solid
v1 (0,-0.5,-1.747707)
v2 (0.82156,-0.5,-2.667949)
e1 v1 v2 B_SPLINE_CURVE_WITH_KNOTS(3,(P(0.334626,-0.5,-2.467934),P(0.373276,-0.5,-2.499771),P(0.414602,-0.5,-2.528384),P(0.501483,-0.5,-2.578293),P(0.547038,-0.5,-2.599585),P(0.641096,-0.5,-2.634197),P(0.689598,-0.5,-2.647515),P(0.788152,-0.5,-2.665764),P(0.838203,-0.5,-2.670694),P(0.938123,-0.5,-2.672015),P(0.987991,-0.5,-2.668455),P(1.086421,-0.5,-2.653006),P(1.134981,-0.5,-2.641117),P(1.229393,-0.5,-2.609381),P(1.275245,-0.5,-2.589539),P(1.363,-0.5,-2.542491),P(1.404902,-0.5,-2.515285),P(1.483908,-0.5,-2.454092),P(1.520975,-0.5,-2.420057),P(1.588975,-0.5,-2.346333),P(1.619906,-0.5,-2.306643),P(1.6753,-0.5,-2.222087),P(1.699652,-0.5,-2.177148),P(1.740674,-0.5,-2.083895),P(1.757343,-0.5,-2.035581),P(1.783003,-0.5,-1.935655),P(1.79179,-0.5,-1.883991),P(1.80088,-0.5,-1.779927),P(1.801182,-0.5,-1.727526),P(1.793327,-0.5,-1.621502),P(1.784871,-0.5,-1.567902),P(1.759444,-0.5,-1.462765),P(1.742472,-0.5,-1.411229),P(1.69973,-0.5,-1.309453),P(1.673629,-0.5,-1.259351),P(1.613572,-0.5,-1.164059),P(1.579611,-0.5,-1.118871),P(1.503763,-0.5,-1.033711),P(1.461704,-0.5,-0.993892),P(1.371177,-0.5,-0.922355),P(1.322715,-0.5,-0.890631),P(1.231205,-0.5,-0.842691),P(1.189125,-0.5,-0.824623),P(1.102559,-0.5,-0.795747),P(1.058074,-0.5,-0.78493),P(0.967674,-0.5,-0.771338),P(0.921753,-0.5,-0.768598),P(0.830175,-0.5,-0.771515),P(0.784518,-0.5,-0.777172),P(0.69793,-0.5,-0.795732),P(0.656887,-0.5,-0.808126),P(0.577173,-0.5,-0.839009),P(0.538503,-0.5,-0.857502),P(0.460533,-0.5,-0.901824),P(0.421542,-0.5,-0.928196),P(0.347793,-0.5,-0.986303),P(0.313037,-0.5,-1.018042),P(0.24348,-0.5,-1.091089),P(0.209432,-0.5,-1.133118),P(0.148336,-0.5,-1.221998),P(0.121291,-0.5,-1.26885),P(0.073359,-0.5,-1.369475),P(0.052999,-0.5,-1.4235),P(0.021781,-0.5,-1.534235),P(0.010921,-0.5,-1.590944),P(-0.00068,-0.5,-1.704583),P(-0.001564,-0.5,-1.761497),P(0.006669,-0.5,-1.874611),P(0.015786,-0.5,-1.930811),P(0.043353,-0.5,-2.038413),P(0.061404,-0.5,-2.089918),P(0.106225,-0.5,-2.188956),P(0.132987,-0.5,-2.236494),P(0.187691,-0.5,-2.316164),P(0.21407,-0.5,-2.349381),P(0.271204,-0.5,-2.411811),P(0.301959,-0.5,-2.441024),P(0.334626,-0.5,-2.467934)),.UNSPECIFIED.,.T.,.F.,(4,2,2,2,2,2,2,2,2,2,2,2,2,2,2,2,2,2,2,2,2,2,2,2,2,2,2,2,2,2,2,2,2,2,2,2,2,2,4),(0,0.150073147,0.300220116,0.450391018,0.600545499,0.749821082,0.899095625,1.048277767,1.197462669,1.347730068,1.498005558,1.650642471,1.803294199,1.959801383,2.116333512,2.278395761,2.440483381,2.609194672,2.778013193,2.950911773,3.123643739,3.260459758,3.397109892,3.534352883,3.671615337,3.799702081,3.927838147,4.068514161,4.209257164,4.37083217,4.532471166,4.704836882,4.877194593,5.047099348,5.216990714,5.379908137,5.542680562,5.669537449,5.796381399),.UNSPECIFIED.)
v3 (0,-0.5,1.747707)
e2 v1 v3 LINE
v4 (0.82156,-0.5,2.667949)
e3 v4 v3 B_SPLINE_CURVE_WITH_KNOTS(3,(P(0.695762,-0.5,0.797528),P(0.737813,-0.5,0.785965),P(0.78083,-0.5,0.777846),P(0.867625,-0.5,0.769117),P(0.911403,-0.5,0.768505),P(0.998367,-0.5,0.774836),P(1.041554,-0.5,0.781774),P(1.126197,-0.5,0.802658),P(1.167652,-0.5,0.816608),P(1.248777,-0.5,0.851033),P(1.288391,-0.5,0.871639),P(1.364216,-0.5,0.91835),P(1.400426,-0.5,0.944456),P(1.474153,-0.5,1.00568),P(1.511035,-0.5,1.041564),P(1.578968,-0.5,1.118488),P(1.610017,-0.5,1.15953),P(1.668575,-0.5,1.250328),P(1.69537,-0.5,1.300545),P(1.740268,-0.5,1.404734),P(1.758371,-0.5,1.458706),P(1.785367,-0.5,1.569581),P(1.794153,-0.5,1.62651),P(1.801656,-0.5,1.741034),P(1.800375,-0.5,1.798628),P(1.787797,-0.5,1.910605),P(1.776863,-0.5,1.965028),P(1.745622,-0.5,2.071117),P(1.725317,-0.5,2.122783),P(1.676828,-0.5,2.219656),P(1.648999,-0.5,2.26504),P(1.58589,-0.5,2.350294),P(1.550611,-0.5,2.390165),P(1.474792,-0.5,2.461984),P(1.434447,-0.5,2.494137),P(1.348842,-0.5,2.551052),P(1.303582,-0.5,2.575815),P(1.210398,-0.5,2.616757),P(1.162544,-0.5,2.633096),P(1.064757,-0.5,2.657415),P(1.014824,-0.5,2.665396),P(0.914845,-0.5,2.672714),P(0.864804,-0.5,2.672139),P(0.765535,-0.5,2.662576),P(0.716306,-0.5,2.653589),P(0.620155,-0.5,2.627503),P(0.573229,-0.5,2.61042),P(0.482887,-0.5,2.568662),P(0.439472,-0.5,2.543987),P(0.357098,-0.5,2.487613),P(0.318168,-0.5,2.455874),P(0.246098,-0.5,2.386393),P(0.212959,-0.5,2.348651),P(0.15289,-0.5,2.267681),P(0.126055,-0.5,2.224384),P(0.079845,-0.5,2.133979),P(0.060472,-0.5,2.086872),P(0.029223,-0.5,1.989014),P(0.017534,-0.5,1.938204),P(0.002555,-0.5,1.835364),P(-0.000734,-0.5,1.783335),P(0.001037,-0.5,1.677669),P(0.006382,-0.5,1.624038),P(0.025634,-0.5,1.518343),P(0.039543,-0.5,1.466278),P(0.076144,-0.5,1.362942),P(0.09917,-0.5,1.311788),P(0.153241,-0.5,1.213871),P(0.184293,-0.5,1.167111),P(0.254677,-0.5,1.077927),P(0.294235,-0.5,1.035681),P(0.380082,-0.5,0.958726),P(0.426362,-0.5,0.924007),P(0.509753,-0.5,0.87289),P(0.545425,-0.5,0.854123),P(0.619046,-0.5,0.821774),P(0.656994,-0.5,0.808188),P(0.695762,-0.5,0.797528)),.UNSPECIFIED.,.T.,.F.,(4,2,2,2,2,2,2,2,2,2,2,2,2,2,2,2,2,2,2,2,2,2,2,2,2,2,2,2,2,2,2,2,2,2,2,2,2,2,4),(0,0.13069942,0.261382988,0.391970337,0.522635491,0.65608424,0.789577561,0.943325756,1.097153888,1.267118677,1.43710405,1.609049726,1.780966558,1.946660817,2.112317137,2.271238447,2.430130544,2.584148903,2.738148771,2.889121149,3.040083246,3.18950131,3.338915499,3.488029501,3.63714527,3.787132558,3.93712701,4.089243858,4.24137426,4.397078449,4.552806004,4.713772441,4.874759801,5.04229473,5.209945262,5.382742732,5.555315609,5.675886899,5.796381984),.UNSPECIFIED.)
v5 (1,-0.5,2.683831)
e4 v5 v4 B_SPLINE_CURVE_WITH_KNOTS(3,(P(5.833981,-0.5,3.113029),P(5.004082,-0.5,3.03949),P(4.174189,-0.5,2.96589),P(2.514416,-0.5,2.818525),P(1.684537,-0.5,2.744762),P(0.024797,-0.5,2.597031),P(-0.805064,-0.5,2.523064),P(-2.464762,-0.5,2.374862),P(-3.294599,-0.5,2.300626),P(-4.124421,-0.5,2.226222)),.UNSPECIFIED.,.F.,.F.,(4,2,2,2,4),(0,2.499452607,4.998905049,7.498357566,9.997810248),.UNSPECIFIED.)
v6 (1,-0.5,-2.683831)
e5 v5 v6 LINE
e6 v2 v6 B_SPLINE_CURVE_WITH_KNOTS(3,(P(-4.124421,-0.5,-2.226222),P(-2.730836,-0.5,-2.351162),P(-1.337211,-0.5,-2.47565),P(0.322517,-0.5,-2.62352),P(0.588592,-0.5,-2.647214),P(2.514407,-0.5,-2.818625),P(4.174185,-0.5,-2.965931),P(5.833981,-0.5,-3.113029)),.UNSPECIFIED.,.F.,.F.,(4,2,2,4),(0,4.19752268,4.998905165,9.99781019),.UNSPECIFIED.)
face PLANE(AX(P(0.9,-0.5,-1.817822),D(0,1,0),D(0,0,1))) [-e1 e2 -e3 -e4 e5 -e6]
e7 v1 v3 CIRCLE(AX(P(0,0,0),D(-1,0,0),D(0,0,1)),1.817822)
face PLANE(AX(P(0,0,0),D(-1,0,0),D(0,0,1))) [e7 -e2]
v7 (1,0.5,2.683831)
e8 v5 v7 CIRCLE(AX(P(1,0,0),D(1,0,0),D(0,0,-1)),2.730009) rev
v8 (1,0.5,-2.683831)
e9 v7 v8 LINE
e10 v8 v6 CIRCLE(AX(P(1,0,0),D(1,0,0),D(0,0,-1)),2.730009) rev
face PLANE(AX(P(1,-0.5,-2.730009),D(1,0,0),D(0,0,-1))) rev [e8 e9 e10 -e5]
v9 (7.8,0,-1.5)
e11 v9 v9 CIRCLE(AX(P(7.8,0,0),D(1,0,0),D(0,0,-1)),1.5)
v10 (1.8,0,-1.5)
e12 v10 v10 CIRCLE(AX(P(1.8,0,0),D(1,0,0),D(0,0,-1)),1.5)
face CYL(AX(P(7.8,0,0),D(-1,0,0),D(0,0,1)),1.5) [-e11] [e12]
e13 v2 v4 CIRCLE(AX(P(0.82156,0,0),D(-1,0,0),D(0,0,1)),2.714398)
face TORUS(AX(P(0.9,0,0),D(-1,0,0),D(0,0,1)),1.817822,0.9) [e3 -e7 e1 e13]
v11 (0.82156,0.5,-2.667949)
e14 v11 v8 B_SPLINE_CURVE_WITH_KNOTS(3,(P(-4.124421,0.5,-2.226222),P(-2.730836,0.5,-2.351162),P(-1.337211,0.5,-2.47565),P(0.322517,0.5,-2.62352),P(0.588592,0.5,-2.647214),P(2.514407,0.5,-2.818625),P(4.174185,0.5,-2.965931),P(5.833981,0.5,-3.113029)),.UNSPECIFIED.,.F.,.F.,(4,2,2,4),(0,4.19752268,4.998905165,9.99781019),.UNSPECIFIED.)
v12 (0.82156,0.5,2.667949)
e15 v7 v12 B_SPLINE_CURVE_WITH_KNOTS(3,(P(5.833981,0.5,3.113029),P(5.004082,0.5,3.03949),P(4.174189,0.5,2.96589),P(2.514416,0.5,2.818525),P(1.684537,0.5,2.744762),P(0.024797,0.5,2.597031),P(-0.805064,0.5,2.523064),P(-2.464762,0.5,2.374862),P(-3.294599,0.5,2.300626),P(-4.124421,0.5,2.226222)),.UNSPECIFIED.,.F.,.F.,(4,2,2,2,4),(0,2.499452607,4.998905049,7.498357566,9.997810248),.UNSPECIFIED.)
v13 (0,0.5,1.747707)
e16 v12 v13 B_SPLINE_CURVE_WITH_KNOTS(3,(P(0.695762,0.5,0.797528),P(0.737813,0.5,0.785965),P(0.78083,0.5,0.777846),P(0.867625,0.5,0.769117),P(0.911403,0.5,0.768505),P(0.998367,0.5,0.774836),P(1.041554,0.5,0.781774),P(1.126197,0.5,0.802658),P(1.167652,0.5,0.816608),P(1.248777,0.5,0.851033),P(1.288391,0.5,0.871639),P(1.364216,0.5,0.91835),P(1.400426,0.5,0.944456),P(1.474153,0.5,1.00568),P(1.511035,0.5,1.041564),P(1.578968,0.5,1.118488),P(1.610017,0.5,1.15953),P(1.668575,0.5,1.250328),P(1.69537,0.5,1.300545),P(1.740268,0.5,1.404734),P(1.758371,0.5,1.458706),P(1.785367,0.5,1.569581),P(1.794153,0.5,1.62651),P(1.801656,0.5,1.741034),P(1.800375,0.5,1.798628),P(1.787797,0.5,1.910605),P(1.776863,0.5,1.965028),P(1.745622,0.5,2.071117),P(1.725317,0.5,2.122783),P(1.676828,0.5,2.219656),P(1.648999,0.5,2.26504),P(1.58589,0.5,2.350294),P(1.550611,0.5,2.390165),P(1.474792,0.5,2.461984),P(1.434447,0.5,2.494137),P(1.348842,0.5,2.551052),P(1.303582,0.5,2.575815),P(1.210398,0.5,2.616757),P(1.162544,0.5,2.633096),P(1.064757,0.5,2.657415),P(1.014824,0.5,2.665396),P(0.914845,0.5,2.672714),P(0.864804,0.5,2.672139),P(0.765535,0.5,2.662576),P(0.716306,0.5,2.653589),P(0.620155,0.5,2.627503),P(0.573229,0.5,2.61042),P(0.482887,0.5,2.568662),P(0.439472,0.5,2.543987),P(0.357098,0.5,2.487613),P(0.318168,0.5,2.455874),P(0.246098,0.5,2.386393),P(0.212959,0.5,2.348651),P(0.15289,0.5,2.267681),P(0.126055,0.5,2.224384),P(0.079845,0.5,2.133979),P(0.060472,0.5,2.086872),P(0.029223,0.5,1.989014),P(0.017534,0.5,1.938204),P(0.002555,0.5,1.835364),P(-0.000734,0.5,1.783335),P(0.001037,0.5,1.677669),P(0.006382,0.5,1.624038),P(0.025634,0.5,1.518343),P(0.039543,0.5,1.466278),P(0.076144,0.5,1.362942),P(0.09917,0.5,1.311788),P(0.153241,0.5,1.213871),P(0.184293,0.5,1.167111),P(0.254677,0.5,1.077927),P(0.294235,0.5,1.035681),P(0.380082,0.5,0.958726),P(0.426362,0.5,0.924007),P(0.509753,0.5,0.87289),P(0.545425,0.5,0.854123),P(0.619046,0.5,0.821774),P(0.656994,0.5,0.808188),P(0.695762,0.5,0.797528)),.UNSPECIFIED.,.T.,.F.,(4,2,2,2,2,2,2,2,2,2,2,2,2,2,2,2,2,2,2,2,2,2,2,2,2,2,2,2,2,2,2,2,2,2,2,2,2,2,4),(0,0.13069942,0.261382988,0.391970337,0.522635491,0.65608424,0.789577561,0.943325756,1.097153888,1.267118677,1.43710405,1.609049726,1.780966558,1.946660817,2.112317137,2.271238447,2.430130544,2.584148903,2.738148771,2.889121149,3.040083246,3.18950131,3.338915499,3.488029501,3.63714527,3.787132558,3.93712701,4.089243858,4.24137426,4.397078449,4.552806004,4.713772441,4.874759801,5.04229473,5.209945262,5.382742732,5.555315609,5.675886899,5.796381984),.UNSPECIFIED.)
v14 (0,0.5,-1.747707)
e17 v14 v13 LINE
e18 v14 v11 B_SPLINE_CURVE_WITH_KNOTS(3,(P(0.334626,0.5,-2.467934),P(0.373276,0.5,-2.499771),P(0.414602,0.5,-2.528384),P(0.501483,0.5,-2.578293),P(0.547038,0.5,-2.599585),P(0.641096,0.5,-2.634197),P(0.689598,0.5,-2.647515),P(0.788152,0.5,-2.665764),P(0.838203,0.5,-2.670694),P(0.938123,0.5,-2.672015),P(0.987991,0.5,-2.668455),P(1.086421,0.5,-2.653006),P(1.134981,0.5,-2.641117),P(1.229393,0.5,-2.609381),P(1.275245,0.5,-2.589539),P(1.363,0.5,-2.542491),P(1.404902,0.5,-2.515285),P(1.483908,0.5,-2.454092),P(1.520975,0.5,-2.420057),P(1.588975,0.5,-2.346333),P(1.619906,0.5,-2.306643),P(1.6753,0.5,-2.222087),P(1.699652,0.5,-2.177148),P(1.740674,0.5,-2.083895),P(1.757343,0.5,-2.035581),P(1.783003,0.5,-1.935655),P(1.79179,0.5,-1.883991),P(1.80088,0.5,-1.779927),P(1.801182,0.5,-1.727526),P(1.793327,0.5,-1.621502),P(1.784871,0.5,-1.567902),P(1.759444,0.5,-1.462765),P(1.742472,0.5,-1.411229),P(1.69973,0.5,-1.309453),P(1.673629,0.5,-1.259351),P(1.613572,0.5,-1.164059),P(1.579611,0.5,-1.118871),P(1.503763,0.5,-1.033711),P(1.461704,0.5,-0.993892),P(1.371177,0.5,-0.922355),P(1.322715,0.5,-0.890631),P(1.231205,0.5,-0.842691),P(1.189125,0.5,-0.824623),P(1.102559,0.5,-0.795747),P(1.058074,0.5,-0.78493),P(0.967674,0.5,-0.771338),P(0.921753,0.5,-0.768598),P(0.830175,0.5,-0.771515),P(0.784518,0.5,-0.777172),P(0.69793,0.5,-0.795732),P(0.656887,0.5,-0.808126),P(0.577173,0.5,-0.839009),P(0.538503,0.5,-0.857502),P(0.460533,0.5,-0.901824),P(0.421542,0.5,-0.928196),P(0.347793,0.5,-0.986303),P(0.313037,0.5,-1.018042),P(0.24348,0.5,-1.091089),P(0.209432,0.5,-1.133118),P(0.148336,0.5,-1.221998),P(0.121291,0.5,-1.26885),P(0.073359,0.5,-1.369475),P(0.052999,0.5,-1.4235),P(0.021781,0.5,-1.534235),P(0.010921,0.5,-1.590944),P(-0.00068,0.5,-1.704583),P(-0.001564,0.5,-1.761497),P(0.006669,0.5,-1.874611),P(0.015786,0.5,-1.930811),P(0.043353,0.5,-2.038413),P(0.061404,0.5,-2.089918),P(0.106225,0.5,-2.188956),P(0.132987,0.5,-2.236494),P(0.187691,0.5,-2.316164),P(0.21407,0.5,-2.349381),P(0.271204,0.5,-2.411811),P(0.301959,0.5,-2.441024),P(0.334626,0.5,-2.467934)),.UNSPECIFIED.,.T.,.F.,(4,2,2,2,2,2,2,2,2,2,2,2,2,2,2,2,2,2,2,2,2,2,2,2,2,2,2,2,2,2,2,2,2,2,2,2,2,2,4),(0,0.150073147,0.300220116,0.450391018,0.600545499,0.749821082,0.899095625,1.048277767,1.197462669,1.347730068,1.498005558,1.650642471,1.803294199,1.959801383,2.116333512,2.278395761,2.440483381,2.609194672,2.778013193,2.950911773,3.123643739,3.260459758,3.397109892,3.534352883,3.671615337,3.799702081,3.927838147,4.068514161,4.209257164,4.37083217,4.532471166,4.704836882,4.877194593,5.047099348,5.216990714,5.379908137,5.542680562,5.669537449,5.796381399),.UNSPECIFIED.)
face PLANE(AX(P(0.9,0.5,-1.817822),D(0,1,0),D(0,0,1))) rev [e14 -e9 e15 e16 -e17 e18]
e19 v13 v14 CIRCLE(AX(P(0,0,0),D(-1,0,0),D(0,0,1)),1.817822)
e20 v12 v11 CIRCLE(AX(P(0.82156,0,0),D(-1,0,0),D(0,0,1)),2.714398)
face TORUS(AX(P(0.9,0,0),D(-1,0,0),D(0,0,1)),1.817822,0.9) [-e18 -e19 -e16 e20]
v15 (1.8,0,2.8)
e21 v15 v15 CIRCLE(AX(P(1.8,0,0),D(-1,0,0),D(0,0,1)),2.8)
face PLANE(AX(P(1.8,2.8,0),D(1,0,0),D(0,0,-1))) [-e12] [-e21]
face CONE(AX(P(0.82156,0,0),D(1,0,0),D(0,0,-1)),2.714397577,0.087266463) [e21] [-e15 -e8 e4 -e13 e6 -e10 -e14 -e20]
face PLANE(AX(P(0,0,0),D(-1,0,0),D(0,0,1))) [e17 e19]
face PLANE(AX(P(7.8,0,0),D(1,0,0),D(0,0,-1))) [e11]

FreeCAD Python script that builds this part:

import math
import FreeCAD as App
import Part
import Sketcher

V = App.Vector
Q = App.Units.Quantity

doc = App.newDocument("Part")
body = doc.addObject("PartDesign::Body", "Body")

sketch1 = body.newObject("Sketcher::SketchObject", "Sketch")
sketch1.AttachmentSupport = (doc.getObject("XY_Plane"), [""])
sketch1.MapMode = "FlatFace"
sketch1.addGeometry([
    Part.LineSegment(V(1.8, 2.8, 0), V(1.8, 0, 0)),
    Part.LineSegment(V(1.8, 0, 0), V(0, 0, 0)),
    Part.LineSegment(V(0, 0, 0), V(0, 1.8, 0)),
    Part.ArcOfCircle(Part.Circle(V(0.9, 1.8, 0), V(0, 0, 1), 0.9), math.radians(95), math.radians(180)),
    Part.LineSegment(V(0.8, 2.7, 0), V(1.8, 2.8, 0)),
], False)
sketch1.addConstraint([
    Sketcher.Constraint("Coincident", 0, 2, 1, 1),
    Sketcher.Constraint("Coincident", 1, 2, 2, 1),
    Sketcher.Constraint("Tangent", 2, 2, 3, 2),
    Sketcher.Constraint("Tangent", 3, 1, 4, 1),
    Sketcher.Constraint("Coincident", 4, 2, 0, 1),
    Sketcher.Constraint("Vertical", 0),
    Sketcher.Constraint("Horizontal", 1),
    Sketcher.Constraint("Vertical", 2),
    Sketcher.Constraint("Coincident", 1, 2, -1, 1),
    Sketcher.Constraint("Radius", 3, Q("0.9 mm")),
    Sketcher.Constraint("Angle", 4, Q("5 deg")),
    Sketcher.Constraint("DistanceX", 1, 2, 1, 1, Q("1.8 mm")),
    Sketcher.Constraint("DistanceY", 0, 2, 0, 1, Q("2.8 mm")),
])
revolution = body.newObject("PartDesign::Revolution", "Revolution")
revolution.Profile = sketch1
revolution.ReferenceAxis = (sketch1, ["H_Axis"])
revolution.Angle = 360

sketch2 = body.newObject("Sketcher::SketchObject", "Sketch001")
sketch2.AttachmentSupport = (doc.getObject("YZ_Plane"), [""])
sketch2.MapMode = "FlatFace"
sketch2.AttachmentOffset = App.Placement(V(0, 0, 1.8), App.Rotation())
sketch2.addGeometry(Part.Circle(V(0, 0, 0), V(0, 0, 1), 1.5), False)
sketch2.addConstraint([
    Sketcher.Constraint("Coincident", 0, 3, -1, 1),
    Sketcher.Constraint("Diameter", 0, Q("3 mm")),
])
pad1 = body.newObject("PartDesign::Pad", "Pad")
pad1.Profile = sketch2
pad1.Length = 6

sketch3 = body.newObject("Sketcher::SketchObject", "Sketch002")
sketch3.AttachmentSupport = (doc.getObject("XZ_Plane"), [""])
sketch3.MapMode = "FlatFace"
sketch3.addGeometry([
    Part.LineSegment(V(0, -1.82, 0), V(0, 1.82, 0)),
    Part.ArcOfCircle(Part.Circle(V(0.9, 1.82, 0), V(0, 0, 1), 0.9), math.radians(95), math.radians(180)),
    Part.LineSegment(V(0.82, 2.71, 0), V(1, 2.73, 0)),
    Part.LineSegment(V(1, 2.73, 0), V(1, -2.73, 0)),
    Part.LineSegment(V(1, -2.73, 0), V(0.82, -2.71, 0)),
    Part.ArcOfCircle(Part.Circle(V(0.9, -1.82, 0), V(0, 0, 1), 0.9), math.radians(180), math.radians(265)),
], False)
sketch3.addConstraint([
    Sketcher.Constraint("Tangent", 0, 2, 1, 2),
    Sketcher.Constraint("Tangent", 1, 1, 2, 1),
    Sketcher.Constraint("Coincident", 2, 2, 3, 1),
    Sketcher.Constraint("Coincident", 3, 2, 4, 1),
    Sketcher.Constraint("Tangent", 4, 2, 5, 2),
    Sketcher.Constraint("Tangent", 5, 1, 0, 1),
    Sketcher.Constraint("Vertical", 0),
    Sketcher.Constraint("Vertical", 3),
    Sketcher.Constraint("Equal", 1, 5),
    Sketcher.Constraint("Symmetric", 0, 2, 5, 1, -1, 1),
    Sketcher.Constraint("Vertical", 1, 1, 4, 2),
    Sketcher.Constraint("Radius", 1, Q("0.9 mm")),
    Sketcher.Constraint("Angle", 2, Q("5 deg")),
    Sketcher.Constraint("DistanceX", -1, 1, 2, 2, Q("1 mm")),
    Sketcher.Constraint("DistanceY", 3, 2, 3, 1, Q("5.460018 mm")),
])
pocket1 = body.newObject("PartDesign::Pocket", "Pocket")
pocket1.Profile = sketch3
pocket1.Length = 1
pocket1.Midplane = True

doc.recompute()
